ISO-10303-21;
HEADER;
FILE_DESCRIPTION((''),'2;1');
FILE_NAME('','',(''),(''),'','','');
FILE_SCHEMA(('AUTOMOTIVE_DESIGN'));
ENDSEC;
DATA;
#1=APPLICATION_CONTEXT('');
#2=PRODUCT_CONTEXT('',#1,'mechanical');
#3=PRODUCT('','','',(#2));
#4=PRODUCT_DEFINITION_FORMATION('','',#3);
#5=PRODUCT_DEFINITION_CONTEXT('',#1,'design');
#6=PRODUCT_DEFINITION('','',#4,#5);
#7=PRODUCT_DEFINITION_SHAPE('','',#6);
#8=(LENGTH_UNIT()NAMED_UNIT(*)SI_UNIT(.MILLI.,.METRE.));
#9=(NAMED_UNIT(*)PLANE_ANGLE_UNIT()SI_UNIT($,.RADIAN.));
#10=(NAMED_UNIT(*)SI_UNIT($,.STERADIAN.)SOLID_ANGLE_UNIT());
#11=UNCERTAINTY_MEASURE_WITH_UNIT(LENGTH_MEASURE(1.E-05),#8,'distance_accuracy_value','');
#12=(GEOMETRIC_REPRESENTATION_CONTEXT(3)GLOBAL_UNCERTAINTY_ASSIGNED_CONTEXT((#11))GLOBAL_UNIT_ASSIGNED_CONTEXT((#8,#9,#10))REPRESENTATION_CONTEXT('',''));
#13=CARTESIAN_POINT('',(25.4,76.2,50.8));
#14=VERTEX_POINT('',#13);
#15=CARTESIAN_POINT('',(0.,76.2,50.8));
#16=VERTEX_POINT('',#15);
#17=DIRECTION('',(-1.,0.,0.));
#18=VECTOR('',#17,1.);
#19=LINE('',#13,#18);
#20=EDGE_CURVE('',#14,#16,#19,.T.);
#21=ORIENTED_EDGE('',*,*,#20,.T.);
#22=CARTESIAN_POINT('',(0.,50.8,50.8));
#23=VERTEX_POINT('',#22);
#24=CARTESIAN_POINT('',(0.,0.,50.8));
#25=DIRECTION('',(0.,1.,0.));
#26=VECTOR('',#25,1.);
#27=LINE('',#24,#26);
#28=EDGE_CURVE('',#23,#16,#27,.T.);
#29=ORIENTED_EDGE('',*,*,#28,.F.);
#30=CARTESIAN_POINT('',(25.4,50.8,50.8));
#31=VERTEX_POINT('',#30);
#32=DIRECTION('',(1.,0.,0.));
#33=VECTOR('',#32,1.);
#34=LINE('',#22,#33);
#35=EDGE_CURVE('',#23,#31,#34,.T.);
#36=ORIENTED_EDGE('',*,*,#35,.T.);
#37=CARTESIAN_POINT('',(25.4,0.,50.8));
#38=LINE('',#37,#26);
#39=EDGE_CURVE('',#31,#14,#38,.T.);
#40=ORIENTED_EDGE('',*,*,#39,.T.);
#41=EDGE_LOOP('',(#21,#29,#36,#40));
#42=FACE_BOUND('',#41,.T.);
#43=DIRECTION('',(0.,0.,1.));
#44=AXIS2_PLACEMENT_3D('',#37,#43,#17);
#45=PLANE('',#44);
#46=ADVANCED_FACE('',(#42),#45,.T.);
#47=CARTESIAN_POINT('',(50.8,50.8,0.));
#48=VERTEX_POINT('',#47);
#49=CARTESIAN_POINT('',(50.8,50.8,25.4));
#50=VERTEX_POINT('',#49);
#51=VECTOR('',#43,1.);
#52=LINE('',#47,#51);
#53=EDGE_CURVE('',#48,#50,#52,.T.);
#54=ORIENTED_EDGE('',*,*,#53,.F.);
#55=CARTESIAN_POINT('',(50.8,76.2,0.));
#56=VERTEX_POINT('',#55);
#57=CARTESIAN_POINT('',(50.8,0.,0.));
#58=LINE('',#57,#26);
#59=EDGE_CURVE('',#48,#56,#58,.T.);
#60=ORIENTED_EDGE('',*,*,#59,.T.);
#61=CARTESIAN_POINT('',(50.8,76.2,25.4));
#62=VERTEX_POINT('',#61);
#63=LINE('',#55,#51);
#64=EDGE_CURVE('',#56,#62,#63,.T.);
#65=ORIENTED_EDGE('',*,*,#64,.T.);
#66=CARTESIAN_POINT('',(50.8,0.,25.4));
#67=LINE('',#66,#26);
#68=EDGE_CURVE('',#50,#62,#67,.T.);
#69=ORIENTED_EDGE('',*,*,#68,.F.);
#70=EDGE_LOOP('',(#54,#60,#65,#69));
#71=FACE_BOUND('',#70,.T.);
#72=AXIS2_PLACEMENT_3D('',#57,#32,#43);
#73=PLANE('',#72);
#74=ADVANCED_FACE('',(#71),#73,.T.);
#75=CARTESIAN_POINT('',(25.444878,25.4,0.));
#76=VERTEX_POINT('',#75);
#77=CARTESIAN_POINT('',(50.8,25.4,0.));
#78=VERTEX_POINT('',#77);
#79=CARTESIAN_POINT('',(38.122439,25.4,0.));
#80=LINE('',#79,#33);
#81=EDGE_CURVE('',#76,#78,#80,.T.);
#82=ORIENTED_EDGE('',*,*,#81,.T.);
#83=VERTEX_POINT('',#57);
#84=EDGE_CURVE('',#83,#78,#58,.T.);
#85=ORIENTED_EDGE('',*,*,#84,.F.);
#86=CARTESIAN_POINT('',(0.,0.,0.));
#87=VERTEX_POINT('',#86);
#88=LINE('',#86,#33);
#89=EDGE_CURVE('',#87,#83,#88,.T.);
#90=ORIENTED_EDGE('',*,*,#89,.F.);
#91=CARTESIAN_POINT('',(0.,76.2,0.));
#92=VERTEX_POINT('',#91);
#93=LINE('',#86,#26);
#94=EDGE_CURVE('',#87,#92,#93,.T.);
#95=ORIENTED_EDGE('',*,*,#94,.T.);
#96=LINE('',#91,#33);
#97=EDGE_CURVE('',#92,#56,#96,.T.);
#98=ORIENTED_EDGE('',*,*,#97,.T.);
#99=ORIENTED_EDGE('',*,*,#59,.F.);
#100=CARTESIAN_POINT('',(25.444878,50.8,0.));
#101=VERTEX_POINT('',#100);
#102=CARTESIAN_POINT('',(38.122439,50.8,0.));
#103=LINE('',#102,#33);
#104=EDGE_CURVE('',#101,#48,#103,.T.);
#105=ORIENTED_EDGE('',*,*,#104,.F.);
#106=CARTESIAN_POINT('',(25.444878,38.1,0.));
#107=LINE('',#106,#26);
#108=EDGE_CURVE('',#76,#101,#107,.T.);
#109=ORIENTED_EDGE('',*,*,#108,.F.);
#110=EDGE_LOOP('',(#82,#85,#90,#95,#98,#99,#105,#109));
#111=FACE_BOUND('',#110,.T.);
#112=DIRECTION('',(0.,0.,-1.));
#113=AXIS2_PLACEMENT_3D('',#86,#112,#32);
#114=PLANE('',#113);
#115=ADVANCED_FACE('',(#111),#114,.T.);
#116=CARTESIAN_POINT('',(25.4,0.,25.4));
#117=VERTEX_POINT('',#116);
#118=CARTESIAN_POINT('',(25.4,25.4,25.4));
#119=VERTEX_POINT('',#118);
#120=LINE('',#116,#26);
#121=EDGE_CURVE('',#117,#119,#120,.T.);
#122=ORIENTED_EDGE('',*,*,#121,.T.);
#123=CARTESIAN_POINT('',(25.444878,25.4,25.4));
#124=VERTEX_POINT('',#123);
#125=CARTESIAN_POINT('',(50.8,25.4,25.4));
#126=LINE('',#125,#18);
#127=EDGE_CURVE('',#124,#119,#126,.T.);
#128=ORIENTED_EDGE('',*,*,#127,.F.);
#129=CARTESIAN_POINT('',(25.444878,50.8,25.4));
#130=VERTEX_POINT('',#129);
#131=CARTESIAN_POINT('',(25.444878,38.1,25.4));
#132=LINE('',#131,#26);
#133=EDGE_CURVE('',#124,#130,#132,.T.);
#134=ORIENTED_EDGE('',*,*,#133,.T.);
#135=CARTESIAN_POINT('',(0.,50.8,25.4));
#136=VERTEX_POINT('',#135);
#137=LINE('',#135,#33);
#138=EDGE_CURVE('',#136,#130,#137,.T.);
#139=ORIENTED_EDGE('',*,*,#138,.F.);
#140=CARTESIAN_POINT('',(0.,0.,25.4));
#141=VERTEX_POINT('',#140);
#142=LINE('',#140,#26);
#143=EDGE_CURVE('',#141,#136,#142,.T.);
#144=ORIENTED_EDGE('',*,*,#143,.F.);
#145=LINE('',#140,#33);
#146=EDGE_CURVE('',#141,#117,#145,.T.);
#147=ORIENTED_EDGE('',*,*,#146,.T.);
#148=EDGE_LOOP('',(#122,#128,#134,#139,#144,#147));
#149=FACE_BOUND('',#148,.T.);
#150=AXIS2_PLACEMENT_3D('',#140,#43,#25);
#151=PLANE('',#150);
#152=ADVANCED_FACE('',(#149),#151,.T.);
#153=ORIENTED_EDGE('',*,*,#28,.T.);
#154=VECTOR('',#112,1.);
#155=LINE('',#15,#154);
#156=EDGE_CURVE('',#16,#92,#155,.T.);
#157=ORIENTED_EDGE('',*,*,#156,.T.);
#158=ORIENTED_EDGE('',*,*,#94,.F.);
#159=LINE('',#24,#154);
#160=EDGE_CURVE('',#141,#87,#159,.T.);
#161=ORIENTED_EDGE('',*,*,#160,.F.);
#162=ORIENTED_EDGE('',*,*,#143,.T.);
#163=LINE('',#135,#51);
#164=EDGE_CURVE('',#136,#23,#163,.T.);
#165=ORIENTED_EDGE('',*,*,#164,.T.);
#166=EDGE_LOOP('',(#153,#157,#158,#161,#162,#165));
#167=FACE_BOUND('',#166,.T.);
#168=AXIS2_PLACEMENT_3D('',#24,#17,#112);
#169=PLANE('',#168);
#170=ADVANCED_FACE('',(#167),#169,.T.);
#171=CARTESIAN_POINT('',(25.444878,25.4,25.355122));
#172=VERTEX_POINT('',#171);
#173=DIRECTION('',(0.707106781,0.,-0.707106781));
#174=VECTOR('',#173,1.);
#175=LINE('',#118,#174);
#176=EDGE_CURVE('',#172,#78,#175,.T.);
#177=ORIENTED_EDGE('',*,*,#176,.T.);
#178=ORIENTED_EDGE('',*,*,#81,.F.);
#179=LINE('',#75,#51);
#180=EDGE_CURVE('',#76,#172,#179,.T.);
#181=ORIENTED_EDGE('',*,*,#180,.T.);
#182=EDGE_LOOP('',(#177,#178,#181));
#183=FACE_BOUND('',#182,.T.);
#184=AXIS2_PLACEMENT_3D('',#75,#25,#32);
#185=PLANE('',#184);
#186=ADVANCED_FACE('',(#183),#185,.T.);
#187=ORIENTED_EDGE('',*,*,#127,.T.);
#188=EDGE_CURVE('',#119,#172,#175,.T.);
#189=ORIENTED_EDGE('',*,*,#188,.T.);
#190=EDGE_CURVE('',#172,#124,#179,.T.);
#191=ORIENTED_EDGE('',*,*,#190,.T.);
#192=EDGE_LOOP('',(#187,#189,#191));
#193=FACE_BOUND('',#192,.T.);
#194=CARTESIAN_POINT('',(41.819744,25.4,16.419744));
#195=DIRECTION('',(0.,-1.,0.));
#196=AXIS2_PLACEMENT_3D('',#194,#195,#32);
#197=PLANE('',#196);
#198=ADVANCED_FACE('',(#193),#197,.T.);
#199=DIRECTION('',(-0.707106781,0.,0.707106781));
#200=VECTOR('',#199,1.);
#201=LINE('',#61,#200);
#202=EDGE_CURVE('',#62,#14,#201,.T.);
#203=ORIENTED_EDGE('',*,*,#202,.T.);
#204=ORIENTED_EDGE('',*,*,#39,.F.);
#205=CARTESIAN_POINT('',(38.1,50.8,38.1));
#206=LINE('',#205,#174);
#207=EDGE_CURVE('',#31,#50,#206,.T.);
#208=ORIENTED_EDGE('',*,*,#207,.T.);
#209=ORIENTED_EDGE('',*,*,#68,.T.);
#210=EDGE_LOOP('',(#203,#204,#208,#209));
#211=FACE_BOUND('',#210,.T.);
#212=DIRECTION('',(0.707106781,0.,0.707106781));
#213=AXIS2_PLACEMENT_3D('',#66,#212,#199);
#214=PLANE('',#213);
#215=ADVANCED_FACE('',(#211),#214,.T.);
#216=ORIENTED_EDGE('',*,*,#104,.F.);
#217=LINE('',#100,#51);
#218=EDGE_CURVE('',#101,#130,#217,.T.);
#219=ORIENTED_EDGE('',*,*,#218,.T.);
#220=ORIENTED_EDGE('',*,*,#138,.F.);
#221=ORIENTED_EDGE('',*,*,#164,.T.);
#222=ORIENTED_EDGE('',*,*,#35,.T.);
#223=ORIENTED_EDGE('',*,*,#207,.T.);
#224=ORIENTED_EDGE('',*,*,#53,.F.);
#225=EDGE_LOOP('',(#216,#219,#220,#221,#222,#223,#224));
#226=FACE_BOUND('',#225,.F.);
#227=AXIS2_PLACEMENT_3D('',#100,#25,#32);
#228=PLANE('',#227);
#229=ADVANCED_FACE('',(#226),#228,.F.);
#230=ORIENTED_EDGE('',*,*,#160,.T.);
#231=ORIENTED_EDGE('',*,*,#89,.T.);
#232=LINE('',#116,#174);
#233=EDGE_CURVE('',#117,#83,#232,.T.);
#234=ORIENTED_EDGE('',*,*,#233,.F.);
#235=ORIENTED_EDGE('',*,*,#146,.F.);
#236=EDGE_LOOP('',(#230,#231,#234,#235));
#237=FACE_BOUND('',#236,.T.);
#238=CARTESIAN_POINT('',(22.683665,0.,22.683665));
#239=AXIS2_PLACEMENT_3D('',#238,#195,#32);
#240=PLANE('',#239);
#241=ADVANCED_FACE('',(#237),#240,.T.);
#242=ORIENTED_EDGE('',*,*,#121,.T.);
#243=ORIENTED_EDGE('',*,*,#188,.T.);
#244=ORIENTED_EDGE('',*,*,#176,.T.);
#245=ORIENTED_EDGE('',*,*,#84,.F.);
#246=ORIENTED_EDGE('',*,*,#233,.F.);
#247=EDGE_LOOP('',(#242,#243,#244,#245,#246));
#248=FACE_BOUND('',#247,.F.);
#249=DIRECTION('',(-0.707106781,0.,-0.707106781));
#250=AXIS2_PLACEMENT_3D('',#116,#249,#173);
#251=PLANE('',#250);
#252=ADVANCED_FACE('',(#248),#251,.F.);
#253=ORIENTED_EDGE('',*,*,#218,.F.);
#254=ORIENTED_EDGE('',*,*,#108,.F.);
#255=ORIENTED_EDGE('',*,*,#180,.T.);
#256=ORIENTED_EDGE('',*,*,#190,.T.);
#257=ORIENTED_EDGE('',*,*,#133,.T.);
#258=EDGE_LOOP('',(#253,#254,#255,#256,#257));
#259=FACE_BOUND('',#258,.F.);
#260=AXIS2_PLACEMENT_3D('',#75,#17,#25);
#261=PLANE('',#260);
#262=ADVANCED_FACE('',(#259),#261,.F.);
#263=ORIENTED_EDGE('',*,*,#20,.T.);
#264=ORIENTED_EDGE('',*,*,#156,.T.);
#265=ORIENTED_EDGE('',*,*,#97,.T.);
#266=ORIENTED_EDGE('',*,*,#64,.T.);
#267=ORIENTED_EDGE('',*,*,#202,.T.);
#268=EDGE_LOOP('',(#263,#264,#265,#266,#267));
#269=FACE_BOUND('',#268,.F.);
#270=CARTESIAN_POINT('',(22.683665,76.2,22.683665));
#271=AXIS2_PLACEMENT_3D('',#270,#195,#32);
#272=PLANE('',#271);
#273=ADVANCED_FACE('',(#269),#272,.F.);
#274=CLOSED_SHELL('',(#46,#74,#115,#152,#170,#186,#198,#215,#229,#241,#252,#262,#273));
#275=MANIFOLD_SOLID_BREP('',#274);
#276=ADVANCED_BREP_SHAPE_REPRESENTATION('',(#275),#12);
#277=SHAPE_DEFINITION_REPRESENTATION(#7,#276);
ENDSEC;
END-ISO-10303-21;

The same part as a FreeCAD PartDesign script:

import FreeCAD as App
import Part
import Sketcher
Q = App.Units.Quantity

doc = App.newDocument("Part")
body = doc.addObject("PartDesign::Body", "Body")

# Sketch on XZ plane
sketch1 = body.newObject("Sketcher::SketchObject", "Sketch")
sketch1.AttachmentSupport = (doc.getObject("XZ_Plane"), [""])
sketch1.MapMode = "FlatFace"
sketch1.addGeometry([
    Part.LineSegment(App.Vector(0, 0, 0), App.Vector(50.8, 0, 0)),  # 0
    Part.LineSegment(App.Vector(50.8, 0, 0), App.Vector(50.8, 25.4, 0)),  # 1
    Part.LineSegment(App.Vector(50.8, 25.4, 0), App.Vector(25.4, 50.8, 0)),  # 2
    Part.LineSegment(App.Vector(25.4, 50.8, 0), App.Vector(0, 50.8, 0)),  # 3
    Part.LineSegment(App.Vector(0, 50.8, 0), App.Vector(0, 0, 0)),  # 4
], False)
sketch1.addConstraint([
    Sketcher.Constraint("Coincident", 0, 2, 1, 1),
    Sketcher.Constraint("Coincident", 1, 2, 2, 1),
    Sketcher.Constraint("Coincident", 2, 2, 3, 1),
    Sketcher.Constraint("Coincident", 3, 2, 4, 1),
    Sketcher.Constraint("Coincident", 4, 2, 0, 1),
    Sketcher.Constraint("Horizontal", 0),
    Sketcher.Constraint("Vertical", 1),
    Sketcher.Constraint("Horizontal", 3),
    Sketcher.Constraint("Vertical", 4),
    Sketcher.Constraint("Coincident", 4, 2, -1, 1),
    Sketcher.Constraint("Equal", 3, 1),
    Sketcher.Constraint("Equal", 0, 4),
    Sketcher.Constraint("DistanceX", 0, 1, 0, 2, Q("2 in")),
    Sketcher.Constraint("DistanceX", 3, 2, 3, 1, Q("1 in")),
])
pad1 = body.newObject("PartDesign::Pad", "Pad")
pad1.Profile = sketch1
pad1.Length = Q("3 in")
pad1.Reversed = True

# Sketch on YZ plane
sketch2 = body.newObject("Sketcher::SketchObject", "Sketch001")
sketch2.AttachmentSupport = (doc.getObject("YZ_Plane"), [""])
sketch2.MapMode = "FlatFace"
sketch2.addGeometry([
    Part.LineSegment(App.Vector(50.8, 25.4, 0), App.Vector(50.8, 50.8, 0)),
    Part.LineSegment(App.Vector(50.8, 50.8, 0), App.Vector(0, 50.8, 0)),
    Part.LineSegment(App.Vector(0, 50.8, 0), App.Vector(0, 25.4, 0)),
    Part.LineSegment(App.Vector(0, 25.4, 0), App.Vector(50.8, 25.4, 0)),
], False)
sketch2.addConstraint([
    Sketcher.Constraint("Coincident", 0, 2, 1, 1),
    Sketcher.Constraint("Coincident", 1, 2, 2, 1),
    Sketcher.Constraint("Coincident", 2, 2, 3, 1),
    Sketcher.Constraint("Coincident", 3, 2, 0, 1),
    Sketcher.Constraint("Vertical", 0),
    Sketcher.Constraint("Horizontal", 1),
    Sketcher.Constraint("Vertical", 2),
    Sketcher.Constraint("Horizontal", 3),
    Sketcher.Constraint("PointOnObject", 1, 2, -2),
    Sketcher.Constraint("DistanceX", 1, 2, 1, 1, Q("2 in")),
    Sketcher.Constraint("DistanceY", 0, 1, 0, 2, Q("1 in")),
    Sketcher.Constraint("DistanceY", -1, 1, 0, 2, Q("2 in")),
])
pocket1 = body.newObject("PartDesign::Pocket", "Pocket")
pocket1.Profile = sketch2
pocket1.Length = Q("2 in")
pocket1.Reversed = True

# Sketch on XY plane
sketch3 = body.newObject("Sketcher::SketchObject", "Sketch002")
sketch3.AttachmentSupport = (doc.getObject("XY_Plane"), [""])
sketch3.MapMode = "FlatFace"
sketch3.addGeometry([
    Part.LineSegment(App.Vector(25.444878, 50.8, 0), App.Vector(25.444878, 25.4, 0)),
    Part.LineSegment(App.Vector(25.444878, 25.4, 0), App.Vector(50.8, 25.4, 0)),
    Part.LineSegment(App.Vector(50.8, 25.4, 0), App.Vector(50.8, 50.8, 0)),
    Part.LineSegment(App.Vector(50.8, 50.8, 0), App.Vector(25.444878, 50.8, 0)),
], False)
sketch3.addConstraint([
    Sketcher.Constraint("Coincident", 0, 2, 1, 1),
    Sketcher.Constraint("Coincident", 1, 2, 2, 1),
    Sketcher.Constraint("Coincident", 2, 2, 3, 1),
    Sketcher.Constraint("Coincident", 3, 2, 0, 1),
    Sketcher.Constraint("Vertical", 0),
    Sketcher.Constraint("Horizontal", 1),
    Sketcher.Constraint("Vertical", 2),
    Sketcher.Constraint("Horizontal", 3),
    Sketcher.Constraint("DistanceY", 0, 2, 0, 1, Q("1 in")),
    Sketcher.Constraint("DistanceY", -1, 1, 0, 2, Q("1 in")),
    Sketcher.Constraint("DistanceX", -1, 1, 1, 2, Q("2 in")),
    Sketcher.Constraint("DistanceX", 1, 1, 1, 2, Q("25.355122 mm")),
])
pocket2 = body.newObject("PartDesign::Pocket", "Pocket001")
pocket2.Profile = sketch3
pocket2.Length = Q("1 in")
pocket2.Reversed = True

# Sketch on XZ plane
sketch4 = body.newObject("Sketcher::SketchObject", "Sketch003")
sketch4.AttachmentSupport = (doc.getObject("XZ_Plane"), [""])
sketch4.MapMode = "FlatFace"
sketch4.addGeometry([
    Part.LineSegment(App.Vector(25.4, 25.4, 0), App.Vector(50.8, 0, 0)),
    Part.LineSegment(App.Vector(50.8, 0, 0), App.Vector(50.8, 25.4, 0)),
    Part.LineSegment(App.Vector(50.8, 25.4, 0), App.Vector(25.4, 25.4, 0)),
], False)
sketch4.addConstraint([
    Sketcher.Constraint("Coincident", 0, 2, 1, 1),
    Sketcher.Constraint("Coincident", 1, 2, 2, 1),
    Sketcher.Constraint("Coincident", 2, 2, 0, 1),
    Sketcher.Constraint("Vertical", 1),
    Sketcher.Constraint("Horizontal", 2),
    Sketcher.Constraint("PointOnObject", 0, 2, -1),
    Sketcher.Constraint("Equal", 2, 1),
    Sketcher.Constraint("DistanceX", 2, 2, 2, 1, Q("1 in")),
    Sketcher.Constraint("DistanceX", -1, 1, 0, 2, Q("2 in")),
])
pocket3 = body.newObject("PartDesign::Pocket", "Pocket002")
pocket3.Profile = sketch4
pocket3.Length = Q("1 in")

doc.recompute()
